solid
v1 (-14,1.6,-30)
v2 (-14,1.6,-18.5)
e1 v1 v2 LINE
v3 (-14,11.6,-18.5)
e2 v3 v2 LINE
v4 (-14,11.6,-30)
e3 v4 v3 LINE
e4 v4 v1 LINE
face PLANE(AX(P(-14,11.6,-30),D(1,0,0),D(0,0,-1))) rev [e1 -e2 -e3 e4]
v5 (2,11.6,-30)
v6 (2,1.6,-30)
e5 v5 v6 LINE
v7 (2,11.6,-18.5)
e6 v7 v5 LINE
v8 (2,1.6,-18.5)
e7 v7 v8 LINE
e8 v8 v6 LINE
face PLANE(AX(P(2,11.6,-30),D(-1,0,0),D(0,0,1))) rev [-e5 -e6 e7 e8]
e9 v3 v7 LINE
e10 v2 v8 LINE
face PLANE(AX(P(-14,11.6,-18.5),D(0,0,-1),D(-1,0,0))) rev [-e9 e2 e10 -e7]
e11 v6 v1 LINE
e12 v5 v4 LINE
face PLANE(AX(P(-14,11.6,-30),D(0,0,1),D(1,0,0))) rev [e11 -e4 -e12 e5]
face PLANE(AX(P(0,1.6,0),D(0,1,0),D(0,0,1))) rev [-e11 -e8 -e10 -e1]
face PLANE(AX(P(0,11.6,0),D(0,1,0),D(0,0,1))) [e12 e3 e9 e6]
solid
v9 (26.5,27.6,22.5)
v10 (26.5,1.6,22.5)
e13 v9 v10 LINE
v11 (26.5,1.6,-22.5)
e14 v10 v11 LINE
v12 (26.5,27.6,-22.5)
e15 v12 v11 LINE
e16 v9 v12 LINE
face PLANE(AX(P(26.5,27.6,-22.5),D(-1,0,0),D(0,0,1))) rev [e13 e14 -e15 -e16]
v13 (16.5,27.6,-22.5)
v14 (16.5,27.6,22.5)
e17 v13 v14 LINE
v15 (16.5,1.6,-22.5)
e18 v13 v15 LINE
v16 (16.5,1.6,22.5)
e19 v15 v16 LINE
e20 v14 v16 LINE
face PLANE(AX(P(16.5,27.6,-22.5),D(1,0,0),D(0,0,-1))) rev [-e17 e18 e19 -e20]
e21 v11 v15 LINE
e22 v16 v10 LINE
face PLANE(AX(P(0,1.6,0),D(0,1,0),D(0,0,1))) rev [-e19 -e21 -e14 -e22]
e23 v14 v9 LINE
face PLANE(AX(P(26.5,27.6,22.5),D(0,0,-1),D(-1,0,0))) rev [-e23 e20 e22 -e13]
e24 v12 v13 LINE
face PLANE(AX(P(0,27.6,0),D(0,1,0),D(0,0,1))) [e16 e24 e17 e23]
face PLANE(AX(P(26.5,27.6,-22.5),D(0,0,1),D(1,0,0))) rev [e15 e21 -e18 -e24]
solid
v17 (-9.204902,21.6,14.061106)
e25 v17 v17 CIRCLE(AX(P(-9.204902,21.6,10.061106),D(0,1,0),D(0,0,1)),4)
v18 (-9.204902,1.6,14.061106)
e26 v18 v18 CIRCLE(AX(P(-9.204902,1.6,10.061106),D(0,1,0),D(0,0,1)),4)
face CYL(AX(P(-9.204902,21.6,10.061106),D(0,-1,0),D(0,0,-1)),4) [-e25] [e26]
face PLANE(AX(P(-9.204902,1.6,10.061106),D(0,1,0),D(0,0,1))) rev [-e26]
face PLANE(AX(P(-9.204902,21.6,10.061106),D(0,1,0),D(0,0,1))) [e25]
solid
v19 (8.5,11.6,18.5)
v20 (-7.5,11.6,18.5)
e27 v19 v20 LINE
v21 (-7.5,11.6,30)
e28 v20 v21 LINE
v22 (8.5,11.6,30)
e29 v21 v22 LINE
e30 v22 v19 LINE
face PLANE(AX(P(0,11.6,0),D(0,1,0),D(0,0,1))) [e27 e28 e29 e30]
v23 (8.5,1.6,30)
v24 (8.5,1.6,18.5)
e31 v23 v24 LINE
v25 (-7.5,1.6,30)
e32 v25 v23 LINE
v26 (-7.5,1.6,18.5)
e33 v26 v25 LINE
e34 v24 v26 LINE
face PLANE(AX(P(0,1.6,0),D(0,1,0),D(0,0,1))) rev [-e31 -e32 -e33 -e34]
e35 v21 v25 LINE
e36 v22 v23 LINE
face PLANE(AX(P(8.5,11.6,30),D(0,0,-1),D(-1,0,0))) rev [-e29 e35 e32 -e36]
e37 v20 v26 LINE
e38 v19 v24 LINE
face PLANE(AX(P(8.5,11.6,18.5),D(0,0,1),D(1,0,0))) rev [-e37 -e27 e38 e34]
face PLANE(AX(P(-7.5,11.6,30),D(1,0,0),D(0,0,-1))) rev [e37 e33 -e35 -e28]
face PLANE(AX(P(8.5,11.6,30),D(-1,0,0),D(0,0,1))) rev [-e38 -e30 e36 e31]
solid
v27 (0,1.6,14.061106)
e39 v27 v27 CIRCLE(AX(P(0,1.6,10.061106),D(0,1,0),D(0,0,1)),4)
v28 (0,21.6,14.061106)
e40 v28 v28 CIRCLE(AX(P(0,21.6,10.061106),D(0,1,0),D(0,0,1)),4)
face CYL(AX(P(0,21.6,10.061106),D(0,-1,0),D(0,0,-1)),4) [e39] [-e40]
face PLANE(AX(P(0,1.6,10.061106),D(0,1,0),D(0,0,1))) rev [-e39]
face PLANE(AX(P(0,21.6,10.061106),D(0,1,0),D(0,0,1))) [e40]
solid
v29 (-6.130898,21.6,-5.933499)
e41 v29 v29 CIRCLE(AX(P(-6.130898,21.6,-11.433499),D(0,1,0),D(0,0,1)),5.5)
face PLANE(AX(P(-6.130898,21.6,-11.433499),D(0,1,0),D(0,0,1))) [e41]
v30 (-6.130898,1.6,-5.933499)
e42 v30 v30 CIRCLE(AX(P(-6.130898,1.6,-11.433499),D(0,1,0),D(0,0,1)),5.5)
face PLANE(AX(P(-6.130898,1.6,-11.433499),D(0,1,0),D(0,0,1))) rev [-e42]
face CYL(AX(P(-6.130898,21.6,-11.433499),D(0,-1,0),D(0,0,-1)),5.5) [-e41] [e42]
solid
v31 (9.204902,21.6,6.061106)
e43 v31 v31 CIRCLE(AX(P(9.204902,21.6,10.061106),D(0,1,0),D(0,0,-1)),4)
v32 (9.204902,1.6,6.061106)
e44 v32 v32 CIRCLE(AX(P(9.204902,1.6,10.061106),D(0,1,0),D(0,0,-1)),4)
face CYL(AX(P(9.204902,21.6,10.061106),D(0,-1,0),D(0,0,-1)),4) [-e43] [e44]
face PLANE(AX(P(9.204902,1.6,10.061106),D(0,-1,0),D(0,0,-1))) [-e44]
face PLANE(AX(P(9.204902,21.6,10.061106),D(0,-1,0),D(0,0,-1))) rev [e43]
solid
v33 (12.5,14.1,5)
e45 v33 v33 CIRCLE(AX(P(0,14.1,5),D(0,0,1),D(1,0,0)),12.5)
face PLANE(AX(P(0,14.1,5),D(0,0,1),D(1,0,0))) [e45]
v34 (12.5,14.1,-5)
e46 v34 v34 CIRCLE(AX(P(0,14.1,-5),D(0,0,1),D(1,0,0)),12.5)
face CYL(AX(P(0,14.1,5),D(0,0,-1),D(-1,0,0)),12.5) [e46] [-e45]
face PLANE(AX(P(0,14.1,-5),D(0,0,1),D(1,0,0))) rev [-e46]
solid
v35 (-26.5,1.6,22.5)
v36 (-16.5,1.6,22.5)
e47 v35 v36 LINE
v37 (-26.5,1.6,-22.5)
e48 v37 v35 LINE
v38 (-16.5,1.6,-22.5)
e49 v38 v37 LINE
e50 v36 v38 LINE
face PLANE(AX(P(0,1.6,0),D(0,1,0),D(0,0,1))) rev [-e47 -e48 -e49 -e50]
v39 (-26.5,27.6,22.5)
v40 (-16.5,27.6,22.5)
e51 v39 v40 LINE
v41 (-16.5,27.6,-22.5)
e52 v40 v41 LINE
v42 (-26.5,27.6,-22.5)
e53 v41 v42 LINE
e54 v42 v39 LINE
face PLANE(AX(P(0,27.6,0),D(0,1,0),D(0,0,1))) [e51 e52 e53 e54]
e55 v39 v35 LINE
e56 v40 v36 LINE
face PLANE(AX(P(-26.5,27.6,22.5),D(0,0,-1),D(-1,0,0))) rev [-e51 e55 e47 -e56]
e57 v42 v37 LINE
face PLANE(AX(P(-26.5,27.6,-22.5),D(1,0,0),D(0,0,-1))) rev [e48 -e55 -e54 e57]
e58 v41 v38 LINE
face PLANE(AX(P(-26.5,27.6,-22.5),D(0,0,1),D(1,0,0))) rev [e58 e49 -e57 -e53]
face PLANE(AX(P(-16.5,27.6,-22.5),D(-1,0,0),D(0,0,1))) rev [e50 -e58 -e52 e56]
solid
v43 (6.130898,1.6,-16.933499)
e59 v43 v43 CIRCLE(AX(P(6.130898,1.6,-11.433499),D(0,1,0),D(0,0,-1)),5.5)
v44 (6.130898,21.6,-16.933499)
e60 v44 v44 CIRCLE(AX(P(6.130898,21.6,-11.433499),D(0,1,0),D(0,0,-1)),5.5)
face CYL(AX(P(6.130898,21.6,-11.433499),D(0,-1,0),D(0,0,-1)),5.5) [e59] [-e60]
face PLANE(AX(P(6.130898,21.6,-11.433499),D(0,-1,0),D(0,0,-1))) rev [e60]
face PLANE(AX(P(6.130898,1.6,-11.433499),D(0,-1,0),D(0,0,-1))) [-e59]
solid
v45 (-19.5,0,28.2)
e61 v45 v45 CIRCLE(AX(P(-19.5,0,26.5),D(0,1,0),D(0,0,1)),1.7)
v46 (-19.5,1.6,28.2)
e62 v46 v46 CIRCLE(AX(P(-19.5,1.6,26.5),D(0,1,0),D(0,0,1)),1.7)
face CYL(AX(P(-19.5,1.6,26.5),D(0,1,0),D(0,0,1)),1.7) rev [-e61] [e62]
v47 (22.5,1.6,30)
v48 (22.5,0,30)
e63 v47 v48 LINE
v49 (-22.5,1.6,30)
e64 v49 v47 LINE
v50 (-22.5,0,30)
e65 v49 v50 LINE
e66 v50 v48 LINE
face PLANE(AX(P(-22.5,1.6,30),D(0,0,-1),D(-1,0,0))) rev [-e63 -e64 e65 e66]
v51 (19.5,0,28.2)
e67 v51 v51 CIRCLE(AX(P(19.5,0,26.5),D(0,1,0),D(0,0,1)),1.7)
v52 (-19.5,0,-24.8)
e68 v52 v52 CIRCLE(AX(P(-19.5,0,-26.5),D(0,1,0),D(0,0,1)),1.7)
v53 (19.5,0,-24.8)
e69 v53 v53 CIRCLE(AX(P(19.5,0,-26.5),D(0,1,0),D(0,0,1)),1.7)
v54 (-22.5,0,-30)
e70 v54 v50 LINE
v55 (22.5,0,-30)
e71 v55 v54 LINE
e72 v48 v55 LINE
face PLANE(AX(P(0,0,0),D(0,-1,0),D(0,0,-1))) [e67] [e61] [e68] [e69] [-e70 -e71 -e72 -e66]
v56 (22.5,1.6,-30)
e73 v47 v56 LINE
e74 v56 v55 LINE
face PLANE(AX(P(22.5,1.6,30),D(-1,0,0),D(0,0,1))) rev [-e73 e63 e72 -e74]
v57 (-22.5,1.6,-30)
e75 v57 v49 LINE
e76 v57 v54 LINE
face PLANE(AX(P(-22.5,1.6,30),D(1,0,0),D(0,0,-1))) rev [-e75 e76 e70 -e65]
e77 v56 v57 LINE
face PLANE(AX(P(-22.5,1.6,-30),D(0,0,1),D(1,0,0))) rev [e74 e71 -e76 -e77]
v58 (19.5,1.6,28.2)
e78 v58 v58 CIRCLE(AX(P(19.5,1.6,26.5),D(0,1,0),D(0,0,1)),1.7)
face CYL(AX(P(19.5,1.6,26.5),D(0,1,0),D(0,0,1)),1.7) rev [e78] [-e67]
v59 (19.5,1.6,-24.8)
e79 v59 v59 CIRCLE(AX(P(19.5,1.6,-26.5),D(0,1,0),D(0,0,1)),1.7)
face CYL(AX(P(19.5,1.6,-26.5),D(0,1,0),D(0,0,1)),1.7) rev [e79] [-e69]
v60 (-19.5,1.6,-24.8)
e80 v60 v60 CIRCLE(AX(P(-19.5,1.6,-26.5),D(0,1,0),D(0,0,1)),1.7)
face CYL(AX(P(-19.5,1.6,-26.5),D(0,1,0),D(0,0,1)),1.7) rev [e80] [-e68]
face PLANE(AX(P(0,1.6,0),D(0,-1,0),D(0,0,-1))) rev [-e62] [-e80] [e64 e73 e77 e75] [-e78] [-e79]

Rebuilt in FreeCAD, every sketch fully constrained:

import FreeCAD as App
import Part
import Sketcher
from FreeCAD import Vector

doc = App.newDocument("Part")
body = doc.addObject("PartDesign::Body", "Body")

# Sketch on XZ plane
sketch1 = body.newObject("Sketcher::SketchObject", "Sketch")
sketch1.AttachmentSupport = (doc.getObject("XZ_Plane"), [""])
sketch1.MapMode = "FlatFace"
sketch1.addGeometry(Part.LineSegment(Vector(-22, -30, 0), Vector(-22, 30, 0)), False)
sketch1.addGeometry(Part.LineSegment(Vector(-22, 30, 0), Vector(22, 30, 0)), False)
sketch1.addGeometry(Part.LineSegment(Vector(22, 30, 0), Vector(22, -30, 0)), False)
sketch1.addGeometry(Part.LineSegment(Vector(22, -30, 0), Vector(-22, -30, 0)), False)
sketch1.addConstraint(Sketcher.Constraint("Coincident", 0, 2, 1, 1))
sketch1.addConstraint(Sketcher.Constraint("Coincident", 1, 2, 2, 1))
sketch1.addConstraint(Sketcher.Constraint("Coincident", 2, 2, 3, 1))
sketch1.addConstraint(Sketcher.Constraint("Coincident", 3, 2, 0, 1))
sketch1.addConstraint(Sketcher.Constraint("Vertical", 0))
sketch1.addConstraint(Sketcher.Constraint("Horizontal", 1))
sketch1.addConstraint(Sketcher.Constraint("Vertical", 2))
sketch1.addConstraint(Sketcher.Constraint("Horizontal", 3))
sketch1.addConstraint(Sketcher.Constraint("Symmetric", 0, 2, 2, 2, -1, 1))
sketch1.addConstraint(Sketcher.Constraint("DistanceX", 1, 1, 1, 2, 45.0))
sketch1.addConstraint(Sketcher.Constraint("DistanceY", 0, 1, 0, 2, 60.0))
pad1 = body.newObject("PartDesign::Pad", "Pad")
pad1.Profile = sketch1
pad1.Length = 1.6
pad1.Reversed = True

# Sketch on YZ plane
sketch2 = body.newObject("Sketcher::SketchObject", "Sketch001")
sketch2.AttachmentSupport = (doc.getObject("YZ_Plane"), [""])
sketch2.MapMode = "FlatFace"
sketch2.AttachmentOffset = App.Placement(Vector(0, 0, -19.5), App.Rotation())
sketch2.addGeometry(Part.LineSegment(Vector(0, -26.5, 0), Vector(1.6, -26.5, 0)), False)
sketch2.addGeometry(Part.LineSegment(Vector(1.6, -26.5, 0), Vector(1.6, -24.8, 0)), False)
sketch2.addGeometry(Part.LineSegment(Vector(1.6, -24.8, 0), Vector(0, -24.8, 0)), False)
sketch2.addGeometry(Part.LineSegment(Vector(0, -24.8, 0), Vector(0, -26.5, 0)), False)
sketch2.addGeometry(Part.LineSegment(Vector(1.6, -26.5, 0), Vector(0, -26.5, 0)), True)  # axis
sketch2.addConstraint(Sketcher.Constraint("Coincident", 0, 2, 1, 1))
sketch2.addConstraint(Sketcher.Constraint("Coincident", 1, 2, 2, 1))
sketch2.addConstraint(Sketcher.Constraint("Coincident", 2, 2, 3, 1))
sketch2.addConstraint(Sketcher.Constraint("Coincident", 3, 2, 0, 1))
sketch2.addConstraint(Sketcher.Constraint("Horizontal", 0))
sketch2.addConstraint(Sketcher.Constraint("Vertical", 1))
sketch2.addConstraint(Sketcher.Constraint("Horizontal", 2))
sketch2.addConstraint(Sketcher.Constraint("Vertical", 3))
sketch2.addConstraint(Sketcher.Constraint("Horizontal", 4))
sketch2.addConstraint(Sketcher.Constraint("Coincident", 4, 1, 0, 2))
sketch2.addConstraint(Sketcher.Constraint("PointOnObject", 2, 2, -2))
sketch2.addConstraint(Sketcher.Constraint("PointOnObject", 4, 2, -2))
sketch2.addConstraint(Sketcher.Constraint("DistanceX", 0, 1, 0, 2, 1.6))
sketch2.addConstraint(Sketcher.Constraint("DistanceY", 1, 1, 1, 2, 1.7))
sketch2.addConstraint(Sketcher.Constraint("DistanceY", 0, 2, -1, 1, 26.5))
groove = body.newObject("PartDesign::Groove", "Groove")
groove.Profile = sketch2
groove.ReferenceAxis = (sketch2, ["Axis0"])
groove.Angle = 360
doc.recompute()

linearpattern = body.newObject("PartDesign::LinearPattern", "LinearPattern")
linearpattern.Originals = [groove]
linearpattern.Direction = (doc.getObject("Z_Axis"), [""])
linearpattern.Mode = "offset"
linearpattern.Offset = 53
linearpattern.Occurrences = 2
body.Tip = linearpattern
doc.recompute()

linearpattern2 = body.newObject("PartDesign::LinearPattern", "LinearPattern001")
linearpattern2.Originals = [groove]
linearpattern2.Direction = (doc.getObject("X_Axis"), [""])
linearpattern2.Mode = "offset"
linearpattern2.Offset = 39
linearpattern2.Occurrences = 2
body.Tip = linearpattern2
doc.recompute()

datumline = body.newObject("PartDesign::Line", "DatumLine")
datumline.Placement = App.Placement(Vector(0, 0, 0), App.Rotation(Vector(0, 0, 1), Vector(0.592680528, 0, 0.80543764)))
linearpattern3 = body.newObject("PartDesign::LinearPattern", "LinearPattern002")
linearpattern3.Originals = [groove]
linearpattern3.Direction = (datumline, [""])
linearpattern3.Mode = "offset"
linearpattern3.Offset = 65.802736
linearpattern3.Occurrences = 2
body.Tip = linearpattern3
body2 = doc.addObject("PartDesign::Body", "Body001")

# Sketch on XZ plane
sketch3 = body2.newObject("Sketcher::SketchObject", "Sketch002")
sketch3.AttachmentSupport = (doc.getObject("XZ_Plane001"), [""])
sketch3.MapMode = "FlatFace"
sketch3.AttachmentOffset = App.Placement(Vector(0, 0, -1.6), App.Rotation())
sketch3.addGeometry(Part.LineSegment(Vector(-26, -22, 0), Vector(-26, 22, 0)), False)
sketch3.addGeometry(Part.LineSegment(Vector(-26, 22, 0), Vector(-16, 22, 0)), False)
sketch3.addGeometry(Part.LineSegment(Vector(-16, 22, 0), Vector(-16, -22, 0)), False)
sketch3.addGeometry(Part.LineSegment(Vector(-16, -22, 0), Vector(-26, -22, 0)), False)
sketch3.addConstraint(Sketcher.Constraint("Coincident", 0, 2, 1, 1))
sketch3.addConstraint(Sketcher.Constraint("Coincident", 1, 2, 2, 1))
sketch3.addConstraint(Sketcher.Constraint("Coincident", 2, 2, 3, 1))
sketch3.addConstraint(Sketcher.Constraint("Coincident", 3, 2, 0, 1))
sketch3.addConstraint(Sketcher.Constraint("Vertical", 0))
sketch3.addConstraint(Sketcher.Constraint("Horizontal", 1))
sketch3.addConstraint(Sketcher.Constraint("Vertical", 2))
sketch3.addConstraint(Sketcher.Constraint("Horizontal", 3))
sketch3.addConstraint(Sketcher.Constraint("DistanceX", 1, 1, 1, 2, 10.0))
sketch3.addConstraint(Sketcher.Constraint("DistanceY", 0, 1, 0, 2, 45.0))
sketch3.addConstraint(Sketcher.Constraint("DistanceX", 0, 2, -1, 1, 26.5))
sketch3.addConstraint(Sketcher.Constraint("DistanceY", -1, 1, 0, 2, 22.5))
pad2 = body2.newObject("PartDesign::Pad", "Pad001")
pad2.Profile = sketch3
pad2.Length = 26
pad2.Reversed = True
body3 = doc.addObject("PartDesign::Body", "Body002")

# Sketch on XZ plane
sketch4 = body3.newObject("Sketcher::SketchObject", "Sketch003")
sketch4.AttachmentSupport = (doc.getObject("XZ_Plane002"), [""])
sketch4.MapMode = "FlatFace"
sketch4.AttachmentOffset = App.Placement(Vector(0, 0, -1.6), App.Rotation())
sketch4.addGeometry(Part.LineSegment(Vector(16, -22, 0), Vector(16, 22, 0)), False)
sketch4.addGeometry(Part.LineSegment(Vector(16, 22, 0), Vector(26, 22, 0)), False)
sketch4.addGeometry(Part.LineSegment(Vector(26, 22, 0), Vector(26, -22, 0)), False)
sketch4.addGeometry(Part.LineSegment(Vector(26, -22, 0), Vector(16, -22, 0)), False)
sketch4.addConstraint(Sketcher.Constraint("Coincident", 0, 2, 1, 1))
sketch4.addConstraint(Sketcher.Constraint("Coincident", 1, 2, 2, 1))
sketch4.addConstraint(Sketcher.Constraint("Coincident", 2, 2, 3, 1))
sketch4.addConstraint(Sketcher.Constraint("Coincident", 3, 2, 0, 1))
sketch4.addConstraint(Sketcher.Constraint("Vertical", 0))
sketch4.addConstraint(Sketcher.Constraint("Horizontal", 1))
sketch4.addConstraint(Sketcher.Constraint("Vertical", 2))
sketch4.addConstraint(Sketcher.Constraint("Horizontal", 3))
sketch4.addConstraint(Sketcher.Constraint("DistanceX", 1, 1, 1, 2, 10.0))
sketch4.addConstraint(Sketcher.Constraint("DistanceY", 0, 1, 0, 2, 45.0))
sketch4.addConstraint(Sketcher.Constraint("DistanceX", -1, 1, 0, 2, 16.5))
sketch4.addConstraint(Sketcher.Constraint("DistanceY", -1, 1, 0, 2, 22.5))
pad3 = body3.newObject("PartDesign::Pad", "Pad002")
pad3.Profile = sketch4
pad3.Length = 26
pad3.Reversed = True
body4 = doc.addObject("PartDesign::Body", "Body003")

# Sketch on XZ plane
sketch5 = body4.newObject("Sketcher::SketchObject", "Sketch004")
sketch5.AttachmentSupport = (doc.getObject("XZ_Plane003"), [""])
sketch5.MapMode = "FlatFace"
sketch5.AttachmentOffset = App.Placement(Vector(0, 0, -1.6), App.Rotation())
sketch5.addGeometry(Part.LineSegment(Vector(-8, 18, 0), Vector(-8, 30, 0)), False)
sketch5.addGeometry(Part.LineSegment(Vector(-8, 30, 0), Vector(8, 30, 0)), False)
sketch5.addGeometry(Part.LineSegment(Vector(8, 30, 0), Vector(8, 18, 0)), False)
sketch5.addGeometry(Part.LineSegment(Vector(8, 18, 0), Vector(-8, 18, 0)), False)
sketch5.addConstraint(Sketcher.Constraint("Coincident", 0, 2, 1, 1))
sketch5.addConstraint(Sketcher.Constraint("Coincident", 1, 2, 2, 1))
sketch5.addConstraint(Sketcher.Constraint("Coincident", 2, 2, 3, 1))
sketch5.addConstraint(Sketcher.Constraint("Coincident", 3, 2, 0, 1))
sketch5.addConstraint(Sketcher.Constraint("Vertical", 0))
sketch5.addConstraint(Sketcher.Constraint("Horizontal", 1))
sketch5.addConstraint(Sketcher.Constraint("Vertical", 2))
sketch5.addConstraint(Sketcher.Constraint("Horizontal", 3))
sketch5.addConstraint(Sketcher.Constraint("DistanceX", 1, 1, 1, 2, 16.0))
sketch5.addConstraint(Sketcher.Constraint("DistanceY", 0, 1, 0, 2, 11.5))
sketch5.addConstraint(Sketcher.Constraint("DistanceY", -1, 1, 0, 2, 30.0))
sketch5.addConstraint(Sketcher.Constraint("DistanceX", 0, 2, -1, 1, 7.5))
pad4 = body4.newObject("PartDesign::Pad", "Pad003")
pad4.Profile = sketch5
pad4.Length = 10
pad4.Reversed = True
body5 = doc.addObject("PartDesign::Body", "Body004")

# Sketch on XZ plane
sketch6 = body5.newObject("Sketcher::SketchObject", "Sketch005")
sketch6.AttachmentSupport = (doc.getObject("XZ_Plane004"), [""])
sketch6.MapMode = "FlatFace"
sketch6.AttachmentOffset = App.Placement(Vector(0, 0, -1.6), App.Rotation())
sketch6.addGeometry(Part.LineSegment(Vector(-14, -30, 0), Vector(-14, -18, 0)), False)
sketch6.addGeometry(Part.LineSegment(Vector(-14, -18, 0), Vector(2, -18, 0)), False)
sketch6.addGeometry(Part.LineSegment(Vector(2, -18, 0), Vector(2, -30, 0)), False)
sketch6.addGeometry(Part.LineSegment(Vector(2, -30, 0), Vector(-14, -30, 0)), False)
sketch6.addConstraint(Sketcher.Constraint("Coincident", 0, 2, 1, 1))
sketch6.addConstraint(Sketcher.Constraint("Coincident", 1, 2, 2, 1))
sketch6.addConstraint(Sketcher.Constraint("Coincident", 2, 2, 3, 1))
sketch6.addConstraint(Sketcher.Constraint("Coincident", 3, 2, 0, 1))
sketch6.addConstraint(Sketcher.Constraint("Vertical", 0))
sketch6.addConstraint(Sketcher.Constraint("Horizontal", 1))
sketch6.addConstraint(Sketcher.Constraint("Vertical", 2))
sketch6.addConstraint(Sketcher.Constraint("Horizontal", 3))
sketch6.addConstraint(Sketcher.Constraint("DistanceX", 1, 1, 1, 2, 16.0))
sketch6.addConstraint(Sketcher.Constraint("DistanceY", 0, 1, 0, 2, 11.5))
sketch6.addConstraint(Sketcher.Constraint("DistanceX", 0, 2, -1, 1, 14.0))
sketch6.addConstraint(Sketcher.Constraint("DistanceY", 2, 2, -1, 1, 30.0))
pad5 = body5.newObject("PartDesign::Pad", "Pad004")
pad5.Profile = sketch6
pad5.Length = 10
pad5.Reversed = True
body6 = doc.addObject("PartDesign::Body", "Body005")

# Sketch on XY plane
sketch7 = body6.newObject("Sketcher::SketchObject", "Sketch006")
sketch7.AttachmentSupport = (doc.getObject("XY_Plane005"), [""])
sketch7.MapMode = "FlatFace"
sketch7.addGeometry(Part.Circle(Vector(0, 14, 0), Vector(0, 0, 1), 12), False)
sketch7.addConstraint(Sketcher.Constraint("PointOnObject", 0, 3, -2))
sketch7.addConstraint(Sketcher.Constraint("Diameter", 0, 25.0))
sketch7.addConstraint(Sketcher.Constraint("DistanceY", -1, 1, 0, 3, 14.1))
pad6 = body6.newObject("PartDesign::Pad", "Pad005")
pad6.Profile = sketch7
pad6.Length = 10
pad6.Midplane = True
body7 = doc.addObject("PartDesign::Body", "Body006")

# Sketch on XZ plane
sketch8 = body7.newObject("Sketcher::SketchObject", "Sketch007")
sketch8.AttachmentSupport = (doc.getObject("XZ_Plane006"), [""])
sketch8.MapMode = "FlatFace"
sketch8.AttachmentOffset = App.Placement(Vector(0, 0, -1.6), App.Rotation())
sketch8.addGeometry(Part.Circle(Vector(-6, -11, 0), Vector(0, 0, 1), 6), False)
sketch8.addConstraint(Sketcher.Constraint("Diameter", 0, 11.0))
sketch8.addConstraint(Sketcher.Constraint("DistanceY", 0, 3, -1, 1, 11.433499))
sketch8.addConstraint(Sketcher.Constraint("DistanceX", 0, 3, -1, 1, 6.130898))
pad7 = body7.newObject("PartDesign::Pad", "Pad006")
pad7.Profile = sketch8
pad7.Length = 20
pad7.Reversed = True
body8 = doc.addObject("PartDesign::Body", "Body007")

# Sketch on XZ plane
sketch9 = body8.newObject("Sketcher::SketchObject", "Sketch008")
sketch9.AttachmentSupport = (doc.getObject("XZ_Plane007"), [""])
sketch9.MapMode = "FlatFace"
sketch9.AttachmentOffset = App.Placement(Vector(0, 0, -1.6), App.Rotation())
sketch9.addGeometry(Part.Circle(Vector(6, -11, 0), Vector(0, 0, 1), 6), False)
sketch9.addConstraint(Sketcher.Constraint("Diameter", 0, 11.0))
sketch9.addConstraint(Sketcher.Constraint("DistanceY", 0, 3, -1, 1, 11.433499))
sketch9.addConstraint(Sketcher.Constraint("DistanceX", -1, 1, 0, 3, 6.130898))
pad8 = body8.newObject("PartDesign::Pad", "Pad007")
pad8.Profile = sketch9
pad8.Length = 20
pad8.Reversed = True
body9 = doc.addObject("PartDesign::Body", "Body008")

# Sketch on XZ plane
sketch10 = body9.newObject("Sketcher::SketchObject", "Sketch009")
sketch10.AttachmentSupport = (doc.getObject("XZ_Plane008"), [""])
sketch10.MapMode = "FlatFace"
sketch10.AttachmentOffset = App.Placement(Vector(0, 0, -1.6), App.Rotation())
sketch10.addGeometry(Part.Circle(Vector(0, 10.1, 0), Vector(0, 0, 1), 4), False)
sketch10.addConstraint(Sketcher.Constraint("PointOnObject", 0, 3, -2))
sketch10.addConstraint(Sketcher.Constraint("Diameter", 0, 8.0))
sketch10.addConstraint(Sketcher.Constraint("DistanceY", -1, 1, 0, 3, 10.061106))
pad9 = body9.newObject("PartDesign::Pad", "Pad008")
pad9.Profile = sketch10
pad9.Length = 20
pad9.Reversed = True
body10 = doc.addObject("PartDesign::Body", "Body009")

# Sketch on XZ plane
sketch11 = body10.newObject("Sketcher::SketchObject", "Sketch010")
sketch11.AttachmentSupport = (doc.getObject("XZ_Plane009"), [""])
sketch11.MapMode = "FlatFace"
sketch11.AttachmentOffset = App.Placement(Vector(0, 0, -1.6), App.Rotation())
sketch11.addGeometry(Part.Circle(Vector(-9.2, 10.1, 0), Vector(0, 0, 1), 4), False)
sketch11.addConstraint(Sketcher.Constraint("Diameter", 0, 8.0))
sketch11.addConstraint(Sketcher.Constraint("DistanceX", 0, 3, -1, 1, 9.204902))
sketch11.addConstraint(Sketcher.Constraint("DistanceY", -1, 1, 0, 3, 10.061106))
pad10 = body10.newObject("PartDesign::Pad", "Pad009")
pad10.Profile = sketch11
pad10.Length = 20
pad10.Reversed = True
body11 = doc.addObject("PartDesign::Body", "Body010")

# Sketch on XZ plane
sketch12 = body11.newObject("Sketcher::SketchObject", "Sketch011")
sketch12.AttachmentSupport = (doc.getObject("XZ_Plane010"), [""])
sketch12.MapMode = "FlatFace"
sketch12.AttachmentOffset = App.Placement(Vector(0, 0, -1.6), App.Rotation())
sketch12.addGeometry(Part.Circle(Vector(9.2, 10.1, 0), Vector(0, 0, 1), 4), False)
sketch12.addConstraint(Sketcher.Constraint("Diameter", 0, 8.0))
sketch12.addConstraint(Sketcher.Constraint("DistanceX", -1, 1, 0, 3, 9.204902))
sketch12.addConstraint(Sketcher.Constraint("DistanceY", -1, 1, 0, 3, 10.061106))
pad11 = body11.newObject("PartDesign::Pad", "Pad010")
pad11.Profile = sketch12
pad11.Length = 20
pad11.Reversed = True

doc.recompute()
